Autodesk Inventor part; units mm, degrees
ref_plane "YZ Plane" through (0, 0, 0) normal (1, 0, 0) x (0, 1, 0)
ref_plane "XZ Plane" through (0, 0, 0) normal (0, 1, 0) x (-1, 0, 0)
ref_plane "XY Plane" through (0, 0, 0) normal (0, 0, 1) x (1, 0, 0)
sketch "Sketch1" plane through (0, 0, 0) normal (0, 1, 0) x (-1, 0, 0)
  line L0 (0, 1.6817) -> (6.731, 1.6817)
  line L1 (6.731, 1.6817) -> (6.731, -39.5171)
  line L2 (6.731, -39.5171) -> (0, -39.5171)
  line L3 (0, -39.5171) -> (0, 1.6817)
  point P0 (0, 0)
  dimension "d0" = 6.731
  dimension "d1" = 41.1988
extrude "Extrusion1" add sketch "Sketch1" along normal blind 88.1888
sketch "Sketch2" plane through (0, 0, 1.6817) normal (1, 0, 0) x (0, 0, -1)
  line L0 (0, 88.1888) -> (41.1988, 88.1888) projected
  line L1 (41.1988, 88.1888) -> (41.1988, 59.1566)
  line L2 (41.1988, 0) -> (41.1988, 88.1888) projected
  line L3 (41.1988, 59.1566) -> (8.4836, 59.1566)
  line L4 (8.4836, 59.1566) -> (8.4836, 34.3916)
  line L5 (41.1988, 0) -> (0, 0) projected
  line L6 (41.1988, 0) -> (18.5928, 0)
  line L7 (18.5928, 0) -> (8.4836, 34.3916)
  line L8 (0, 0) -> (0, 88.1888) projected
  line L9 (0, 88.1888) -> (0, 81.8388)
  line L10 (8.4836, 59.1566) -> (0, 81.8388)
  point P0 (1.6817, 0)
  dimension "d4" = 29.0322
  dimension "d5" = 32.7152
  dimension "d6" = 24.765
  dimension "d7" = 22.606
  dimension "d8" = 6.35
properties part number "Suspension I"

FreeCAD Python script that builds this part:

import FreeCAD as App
import Part
import Sketcher
Q = App.Units.Quantity


def add_polygon(sketch, points):
    """Adds a closed chain of lines whose ends are joined by coincident constraints."""
    first, n = sketch.GeometryCount, len(points)
    for a, b in zip(points, points[1:] + points[:1]):
        sketch.addGeometry(Part.LineSegment(App.Vector(*a, 0), App.Vector(*b, 0)), False)
    for i in range(n):
        sketch.addConstraint(Sketcher.Constraint("Coincident", first + i, 2, first + (i + 1) % n, 1))

doc = App.newDocument("Part")
params = doc.addObject("Spreadsheet::Sheet", "Params")
for row, (alias, value) in enumerate([
    ("sketch1_width", "0.265 in"),
    ("sketch1_height", "1.622 in"),
    ("pad1_length", "3.472 in"),
], start=1):
    params.set(f"A{row}", alias)
    params.set(f"B{row}", "=" + value)
    params.setAlias(f"B{row}", alias)

body = doc.addObject("PartDesign::Body", "Body")

# Sketch on XZ plane
sketch1 = body.newObject("Sketcher::SketchObject", "Sketch")
sketch1.AttachmentSupport = (doc.getObject("XZ_Plane"), [""])
sketch1.MapMode = "FlatFace"
add_polygon(sketch1, [(-7, 2), (0, 2), (0, -40), (-7, -40)])  # lines 0-3
sketch1.addConstraint(Sketcher.Constraint("Horizontal", 0))
sketch1.addConstraint(Sketcher.Constraint("Vertical", 1))
sketch1.addConstraint(Sketcher.Constraint("Horizontal", 2))
sketch1.addConstraint(Sketcher.Constraint("Vertical", 3))
sketch1.addConstraint(Sketcher.Constraint("PointOnObject", 0, 2, -2))
sketch1.addConstraint(Sketcher.Constraint("DistanceX", 0, 1, 0, 2, Q("0.265 in")))
sketch1.addConstraint(Sketcher.Constraint("DistanceY", 1, 2, 1, 1, Q("1.622 in")))
sketch1.addConstraint(Sketcher.Constraint("DistanceY", -1, 1, 0, 2, Q("0.0662 in")))
sketch1.setExpression("Constraints[9]", "Params.sketch1_width")
sketch1.setExpression("Constraints[10]", "Params.sketch1_height")
pad1 = body.newObject("PartDesign::Pad", "Pad")
pad1.Profile = sketch1
pad1.setExpression("Length", "Params.pad1_length")
pad1.Reversed = True

doc.recompute()
